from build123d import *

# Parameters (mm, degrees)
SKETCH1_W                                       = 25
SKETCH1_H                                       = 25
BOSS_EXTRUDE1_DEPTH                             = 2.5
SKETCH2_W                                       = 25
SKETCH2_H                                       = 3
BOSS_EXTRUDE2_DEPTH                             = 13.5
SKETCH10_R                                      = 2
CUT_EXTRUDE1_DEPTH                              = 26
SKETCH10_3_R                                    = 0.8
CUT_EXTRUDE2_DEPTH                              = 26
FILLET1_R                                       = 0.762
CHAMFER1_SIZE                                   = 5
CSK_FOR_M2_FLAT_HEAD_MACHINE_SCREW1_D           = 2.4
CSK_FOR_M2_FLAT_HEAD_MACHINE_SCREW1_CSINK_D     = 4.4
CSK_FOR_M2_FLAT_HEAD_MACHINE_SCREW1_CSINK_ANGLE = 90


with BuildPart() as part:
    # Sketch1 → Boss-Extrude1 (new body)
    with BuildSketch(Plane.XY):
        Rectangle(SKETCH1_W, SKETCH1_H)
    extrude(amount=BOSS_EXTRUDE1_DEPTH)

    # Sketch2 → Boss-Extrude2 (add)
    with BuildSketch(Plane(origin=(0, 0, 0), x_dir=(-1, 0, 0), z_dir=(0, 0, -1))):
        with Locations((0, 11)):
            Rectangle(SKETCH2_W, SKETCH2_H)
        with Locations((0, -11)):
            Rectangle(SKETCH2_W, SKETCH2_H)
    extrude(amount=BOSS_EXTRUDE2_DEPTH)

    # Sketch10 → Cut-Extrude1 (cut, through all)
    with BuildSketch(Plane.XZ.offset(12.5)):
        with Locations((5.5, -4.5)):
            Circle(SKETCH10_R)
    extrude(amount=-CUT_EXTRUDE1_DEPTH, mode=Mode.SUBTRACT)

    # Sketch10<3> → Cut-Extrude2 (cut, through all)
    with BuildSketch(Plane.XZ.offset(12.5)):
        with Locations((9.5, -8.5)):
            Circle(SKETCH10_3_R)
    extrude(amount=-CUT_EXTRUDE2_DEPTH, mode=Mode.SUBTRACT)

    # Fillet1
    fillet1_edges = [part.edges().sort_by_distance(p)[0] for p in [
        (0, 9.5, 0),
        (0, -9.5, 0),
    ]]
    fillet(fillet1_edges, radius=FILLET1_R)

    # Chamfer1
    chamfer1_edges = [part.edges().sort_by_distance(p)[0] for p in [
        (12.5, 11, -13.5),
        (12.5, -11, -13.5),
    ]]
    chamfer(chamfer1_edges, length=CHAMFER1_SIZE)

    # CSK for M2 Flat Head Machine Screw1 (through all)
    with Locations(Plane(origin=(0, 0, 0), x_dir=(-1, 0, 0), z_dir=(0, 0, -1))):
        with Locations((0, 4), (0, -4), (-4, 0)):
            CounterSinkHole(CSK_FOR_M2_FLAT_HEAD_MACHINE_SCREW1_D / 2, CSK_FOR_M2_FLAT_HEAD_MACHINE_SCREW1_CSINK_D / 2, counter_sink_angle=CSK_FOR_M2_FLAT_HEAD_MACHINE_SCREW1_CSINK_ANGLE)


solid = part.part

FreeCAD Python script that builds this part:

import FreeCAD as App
import Part
import Sketcher
Q = App.Units.Quantity


def edges_at(feature, points):
    """Names of the edges that pass closest to the given points."""
    edges = feature.Shape.Edges
    near = lambda p: min(range(len(edges)), key=lambda i: edges[i].distToShape(Part.Vertex(*p))[0])
    return sorted({f"Edge{near(p) + 1}" for p in points})


def add_polygon(sketch, points):
    """Adds a closed chain of lines whose ends are joined by coincident constraints."""
    first, n = sketch.GeometryCount, len(points)
    for a, b in zip(points, points[1:] + points[:1]):
        sketch.addGeometry(Part.LineSegment(App.Vector(*a, 0), App.Vector(*b, 0)), False)
    for i in range(n):
        sketch.addConstraint(Sketcher.Constraint("Coincident", first + i, 2, first + (i + 1) % n, 1))

doc = App.newDocument("Part")
params = doc.addObject("Spreadsheet::Sheet", "Params")
for row, (alias, value) in enumerate([
    ("sketch1_width", "25 mm"),
    ("pad1_length", "2.5 mm"),
    ("sketch2_width", "25 mm"),
    ("sketch2_height", "3 mm"),
    ("pad2_length", "13.5 mm"),
    ("sketch3_diameter", "4 mm"),
    ("sketch4_diameter", "1.6 mm"),
    ("fillet_radius", "0.762 mm"),
    ("chamfer_size", "5 mm"),
    ("sketch5_diameter", "2.4 mm"),
    ("hole_diameter", "2.4 mm"),
    ("hole_csink_diameter", "4.4 mm"),
], start=1):
    params.set(f"A{row}", alias)
    params.set(f"B{row}", "=" + value)
    params.setAlias(f"B{row}", alias)

body = doc.addObject("PartDesign::Body", "Body")

sketch1 = body.newObject("Sketcher::SketchObject", "Sketch")
sketch1.AttachmentSupport = (doc.getObject("XY_Plane"), [""])
sketch1.MapMode = "FlatFace"
add_polygon(sketch1, [(-12, 12), (-12, -12), (12, -12), (12, 12)])
sketch1.addConstraint([
    Sketcher.Constraint("Vertical", 0),
    Sketcher.Constraint("Horizontal", 1),
    Sketcher.Constraint("Vertical", 2),
    Sketcher.Constraint("Horizontal", 3),
    Sketcher.Constraint("Symmetric", 0, 2, 2, 2, -1, 1),
    Sketcher.Constraint("Equal", 3, 0),
    Sketcher.Constraint("DistanceX", 1, 1, 1, 2, Q("25 mm")),
])
sketch1.setExpression("Constraints[10]", "Params.sketch1_width")
pad1 = body.newObject("PartDesign::Pad", "Pad")
pad1.Profile = sketch1
pad1.setExpression("Length", "Params.pad1_length")

sketch2 = body.newObject("Sketcher::SketchObject", "Sketch001")
sketch2.AttachmentSupport = (doc.getObject("XY_Plane"), [""])
sketch2.MapMode = "FlatFace"
add_polygon(sketch2, [(12.5, 12.5), (12.5, 9.5), (-12.5, 9.5), (-12.5, 12.5)])
add_polygon(sketch2, [(12.5, -9.5), (12.5, -12.5), (-12.5, -12.5), (-12.5, -9.5)])
sketch2.addConstraint([
    Sketcher.Constraint("Vertical", 0),
    Sketcher.Constraint("Horizontal", 1),
    Sketcher.Constraint("Vertical", 2),
    Sketcher.Constraint("Horizontal", 3),
    Sketcher.Constraint("Vertical", 4),
    Sketcher.Constraint("Horizontal", 5),
    Sketcher.Constraint("Vertical", 6),
    Sketcher.Constraint("Horizontal", 7),
    Sketcher.Constraint("Symmetric", 2, 2, 4, 2, -1, 1),
    Sketcher.Constraint("Symmetric", 0, 2, 6, 2, -1, 1),
    Sketcher.Constraint("Vertical", 3, 2, 4, 2),
    Sketcher.Constraint("DistanceX", 1, 2, 1, 1, Q("25 mm")),
    Sketcher.Constraint("DistanceY", 0, 2, 0, 1, Q("3 mm")),
    Sketcher.Constraint("DistanceY", 4, 2, 0, 2, Q("22 mm")),
])
sketch2.setExpression("Constraints[19]", "Params.sketch2_width")
sketch2.setExpression("Constraints[20]", "Params.sketch2_height")
pad2 = body.newObject("PartDesign::Pad", "Pad001")
pad2.Profile = sketch2
pad2.setExpression("Length", "Params.pad2_length")
pad2.Reversed = True

sketch3 = body.newObject("Sketcher::SketchObject", "Sketch002")
sketch3.AttachmentSupport = (doc.getObject("XZ_Plane"), [""])
sketch3.MapMode = "FlatFace"
sketch3.AttachmentOffset = App.Placement(App.Vector(0, 0, 12.5), App.Rotation())
sketch3.addGeometry(Part.Circle(App.Vector(5.5, -4.5, 0), App.Vector(0, 0, 1), 2), False)
sketch3.addConstraint([
    Sketcher.Constraint("Diameter", 0, Q("4 mm")),
    Sketcher.Constraint("DistanceX", -1, 1, 0, 3, Q("5.5 mm")),
    Sketcher.Constraint("DistanceY", 0, 3, -1, 1, Q("4.5 mm")),
])
sketch3.setExpression("Constraints[0]", "Params.sketch3_diameter")
pocket1 = body.newObject("PartDesign::Pocket", "Pocket")
pocket1.Profile = sketch3
pocket1.Type = "ThroughAll"

sketch4 = body.newObject("Sketcher::SketchObject", "Sketch003")
sketch4.AttachmentSupport = (doc.getObject("XZ_Plane"), [""])
sketch4.MapMode = "FlatFace"
sketch4.AttachmentOffset = App.Placement(App.Vector(0, 0, 12.5), App.Rotation())
sketch4.addGeometry(Part.Circle(App.Vector(9.5, -8.5, 0), App.Vector(0, 0, 1), 0.8), False)
sketch4.addConstraint([
    Sketcher.Constraint("Diameter", 0, Q("1.6 mm")),
    Sketcher.Constraint("DistanceX", -1, 1, 0, 3, Q("9.5 mm")),
    Sketcher.Constraint("DistanceY", 0, 3, -1, 1, Q("8.5 mm")),
])
sketch4.setExpression("Constraints[0]", "Params.sketch4_diameter")
pocket2 = body.newObject("PartDesign::Pocket", "Pocket001")
pocket2.Profile = sketch4
pocket2.Type = "ThroughAll"
doc.recompute()

fillet = body.newObject("PartDesign::Fillet", "Fillet")
fillet.Base = (pocket2, edges_at(pocket2, [(0, 9.5, 0), (0, -9.5, 0)]))
fillet.setExpression("Radius", "Params.fillet_radius")
doc.recompute()

chamfer = body.newObject("PartDesign::Chamfer", "Chamfer")
chamfer.Base = (fillet, edges_at(fillet, [(12.5, 11, -13.5), (12.5, -11, -13.5)]))
chamfer.setExpression("Size", "Params.chamfer_size")

sketch5 = body.newObject("Sketcher::SketchObject", "Sketch004")
sketch5.AttachmentSupport = (doc.getObject("XY_Plane"), [""])
sketch5.MapMode = "FlatFace"
sketch5.addGeometry([
    Part.Circle(App.Vector(0, 4, 0), App.Vector(0, 0, 1), 1.2),
    Part.Circle(App.Vector(0, -4, 0), App.Vector(0, 0, 1), 1.2),
    Part.Circle(App.Vector(4, 0, 0), App.Vector(0, 0, 1), 1.2),
], False)
sketch5.addConstraint([
    Sketcher.Constraint("Equal", 0, 1),
    Sketcher.Constraint("Equal", 1, 2),
    Sketcher.Constraint("Symmetric", 0, 3, 1, 3, -1, 1),
    Sketcher.Constraint("PointOnObject", 0, 3, -2),
    Sketcher.Constraint("PointOnObject", 2, 3, -1),
    Sketcher.Constraint("Diameter", 0, Q("2.4 mm")),
    Sketcher.Constraint("DistanceY", -1, 1, 0, 3, Q("4 mm")),
    Sketcher.Constraint("DistanceX", -1, 1, 2, 3, Q("4 mm")),
])
sketch5.setExpression("Constraints[5]", "Params.sketch5_diameter")
doc.recompute()
hole = body.newObject("PartDesign::Hole", "Hole")
hole.Profile = sketch5
hole.ThreadType = "None"
hole.setExpression("Diameter", "Params.hole_diameter")
hole.DepthType = "ThroughAll"
hole.HoleCutType = "Countersink"
hole.setExpression("HoleCutDiameter", "Params.hole_csink_diameter")
hole.HoleCutCountersinkAngle = 90
hole.Reversed = True

doc.recompute()
